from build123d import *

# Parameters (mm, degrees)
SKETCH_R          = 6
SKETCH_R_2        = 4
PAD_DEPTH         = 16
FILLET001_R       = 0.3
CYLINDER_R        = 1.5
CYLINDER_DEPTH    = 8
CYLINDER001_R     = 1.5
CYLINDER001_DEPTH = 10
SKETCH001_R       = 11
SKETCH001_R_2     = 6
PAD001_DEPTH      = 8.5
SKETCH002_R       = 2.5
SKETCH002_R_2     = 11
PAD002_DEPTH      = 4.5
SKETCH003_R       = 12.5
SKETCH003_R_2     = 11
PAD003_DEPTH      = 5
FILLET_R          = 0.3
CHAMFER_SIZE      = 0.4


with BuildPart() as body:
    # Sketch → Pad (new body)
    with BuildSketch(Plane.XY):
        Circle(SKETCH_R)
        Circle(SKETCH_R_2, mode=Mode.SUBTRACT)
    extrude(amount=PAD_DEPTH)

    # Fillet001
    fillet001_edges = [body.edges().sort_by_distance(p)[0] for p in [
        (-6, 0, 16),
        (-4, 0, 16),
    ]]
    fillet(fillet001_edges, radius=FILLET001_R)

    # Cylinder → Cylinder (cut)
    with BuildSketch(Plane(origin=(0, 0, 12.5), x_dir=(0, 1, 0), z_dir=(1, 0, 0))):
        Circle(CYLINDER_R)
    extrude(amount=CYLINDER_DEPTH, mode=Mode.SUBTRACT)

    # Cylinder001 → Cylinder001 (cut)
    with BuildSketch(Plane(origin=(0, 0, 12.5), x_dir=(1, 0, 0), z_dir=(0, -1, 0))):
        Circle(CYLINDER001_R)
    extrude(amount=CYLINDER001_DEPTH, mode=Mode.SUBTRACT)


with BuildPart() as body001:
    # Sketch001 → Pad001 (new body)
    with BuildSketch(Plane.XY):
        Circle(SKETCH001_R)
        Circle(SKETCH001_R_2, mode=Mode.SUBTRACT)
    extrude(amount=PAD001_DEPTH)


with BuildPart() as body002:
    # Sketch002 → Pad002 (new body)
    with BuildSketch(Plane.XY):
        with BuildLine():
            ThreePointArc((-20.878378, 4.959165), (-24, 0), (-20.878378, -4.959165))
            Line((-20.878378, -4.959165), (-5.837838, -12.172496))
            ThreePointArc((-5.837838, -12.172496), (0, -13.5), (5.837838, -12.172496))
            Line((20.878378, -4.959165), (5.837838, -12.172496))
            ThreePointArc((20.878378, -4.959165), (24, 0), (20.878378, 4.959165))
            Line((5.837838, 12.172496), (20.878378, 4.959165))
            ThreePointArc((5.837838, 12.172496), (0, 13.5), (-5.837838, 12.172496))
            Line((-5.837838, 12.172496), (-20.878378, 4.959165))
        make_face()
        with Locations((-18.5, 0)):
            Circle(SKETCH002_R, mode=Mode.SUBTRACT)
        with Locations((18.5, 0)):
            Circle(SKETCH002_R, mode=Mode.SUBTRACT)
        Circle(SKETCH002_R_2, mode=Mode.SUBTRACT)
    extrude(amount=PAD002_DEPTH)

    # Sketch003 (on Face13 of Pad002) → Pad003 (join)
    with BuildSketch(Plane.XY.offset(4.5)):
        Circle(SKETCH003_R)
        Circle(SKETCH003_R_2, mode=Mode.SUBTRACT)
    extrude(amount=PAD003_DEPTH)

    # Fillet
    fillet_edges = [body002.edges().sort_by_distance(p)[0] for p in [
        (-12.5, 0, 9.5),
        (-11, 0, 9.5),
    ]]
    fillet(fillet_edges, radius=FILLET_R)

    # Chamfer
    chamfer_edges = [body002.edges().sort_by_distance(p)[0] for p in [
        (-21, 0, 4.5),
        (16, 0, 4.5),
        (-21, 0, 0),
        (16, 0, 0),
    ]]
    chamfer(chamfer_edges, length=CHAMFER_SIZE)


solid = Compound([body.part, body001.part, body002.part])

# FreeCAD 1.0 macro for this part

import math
import FreeCAD as App
import Part
import Sketcher
from FreeCAD import Vector


def edges_at(feature, points):
    """Names of the edges that pass closest to the given points."""
    edges = feature.Shape.Edges
    near = lambda p: min(range(len(edges)), key=lambda i: edges[i].distToShape(Part.Vertex(*p))[0])
    return sorted({f"Edge{near(p) + 1}" for p in points})

doc = App.newDocument("Part")
body = doc.addObject("PartDesign::Body", "Body")

# Sketch on XY plane
sketch1 = body.newObject("Sketcher::SketchObject", "Sketch")
sketch1.AttachmentSupport = (doc.getObject("XY_Plane"), [""])
sketch1.MapMode = "FlatFace"
sketch1.addGeometry([
    Part.Circle(Vector(0, 0, 0), Vector(0, 0, 1), 6),
    Part.Circle(Vector(0, 0, 0), Vector(0, 0, 1), 4),
], False)
sketch1.addConstraint([
    Sketcher.Constraint("Coincident", 0, 3, -1, 1),
    Sketcher.Constraint("Coincident", 1, 3, -1, 1),
    Sketcher.Constraint("Diameter", 0, 12.0),
    Sketcher.Constraint("Diameter", 1, 8.0),
])
pad1 = body.newObject("PartDesign::Pad", "Pad")
pad1.Profile = sketch1
pad1.Length = 16
doc.recompute()

fillet = body.newObject("PartDesign::Fillet", "Fillet")
fillet.Base = (pad1, edges_at(pad1, [(-6, 0, 16), (-4, 0, 16)]))
fillet.Radius = 0.3

# Sketch on YZ plane
sketch2 = body.newObject("Sketcher::SketchObject", "Sketch001")
sketch2.AttachmentSupport = (doc.getObject("YZ_Plane"), [""])
sketch2.MapMode = "FlatFace"
sketch2.addGeometry(Part.Circle(Vector(0, 12.5, 0), Vector(0, 0, 1), 1.5), False)
sketch2.addConstraint([
    Sketcher.Constraint("PointOnObject", 0, 3, -2),
    Sketcher.Constraint("Diameter", 0, 3.0),
    Sketcher.Constraint("DistanceY", -1, 1, 0, 3, 12.5),
])
pocket1 = body.newObject("PartDesign::Pocket", "Pocket")
pocket1.Profile = sketch2
pocket1.Length = 8
pocket1.Reversed = True

# Sketch on XZ plane
sketch3 = body.newObject("Sketcher::SketchObject", "Sketch002")
sketch3.AttachmentSupport = (doc.getObject("XZ_Plane"), [""])
sketch3.MapMode = "FlatFace"
sketch3.addGeometry(Part.Circle(Vector(0, 12.5, 0), Vector(0, 0, 1), 1.5), False)
sketch3.addConstraint([
    Sketcher.Constraint("PointOnObject", 0, 3, -2),
    Sketcher.Constraint("Diameter", 0, 3.0),
    Sketcher.Constraint("DistanceY", -1, 1, 0, 3, 12.5),
])
pocket2 = body.newObject("PartDesign::Pocket", "Pocket001")
pocket2.Profile = sketch3
pocket2.Length = 10
pocket2.Reversed = True
body2 = doc.addObject("PartDesign::Body", "Body001")

# Sketch on XY plane
sketch4 = body2.newObject("Sketcher::SketchObject", "Sketch003")
sketch4.AttachmentSupport = (doc.getObject("XY_Plane001"), [""])
sketch4.MapMode = "FlatFace"
sketch4.addGeometry([
    Part.Circle(Vector(0, 0, 0), Vector(0, 0, 1), 11),
    Part.Circle(Vector(0, 0, 0), Vector(0, 0, 1), 6),
], False)
sketch4.addConstraint([
    Sketcher.Constraint("Coincident", 0, 3, -1, 1),
    Sketcher.Constraint("Coincident", 1, 3, -1, 1),
    Sketcher.Constraint("Diameter", 0, 22.0),
    Sketcher.Constraint("Diameter", 1, 12.0),
])
pad2 = body2.newObject("PartDesign::Pad", "Pad001")
pad2.Profile = sketch4
pad2.Length = 8.5
body3 = doc.addObject("PartDesign::Body", "Body002")

# Sketch on XY plane
sketch5 = body3.newObject("Sketcher::SketchObject", "Sketch004")
sketch5.AttachmentSupport = (doc.getObject("XY_Plane002"), [""])
sketch5.MapMode = "FlatFace"
sketch5.addGeometry([
    Part.ArcOfCircle(Part.Circle(Vector(-18.5, 0, 0), Vector(0, 0, 1), 5.5), math.radians(116), math.radians(244)),  # 0
    Part.LineSegment(Vector(-20.9, -5, 0), Vector(-5.8, -12.2, 0)),  # 1
    Part.ArcOfCircle(Part.Circle(Vector(0, 0, 0), Vector(0, 0, 1), 13.5), math.radians(-116), math.radians(-64)),  # 2
    Part.LineSegment(Vector(5.8, -12.2, 0), Vector(20.9, -5, 0)),  # 3
    Part.ArcOfCircle(Part.Circle(Vector(18.5, 0, 0), Vector(0, 0, 1), 5.5), math.radians(-64), math.radians(64)),  # 4
    Part.LineSegment(Vector(20.9, 5, 0), Vector(5.8, 12.2, 0)),  # 5
    Part.ArcOfCircle(Part.Circle(Vector(0, 0, 0), Vector(0, 0, 1), 13.5), math.radians(64), math.radians(116)),  # 6
    Part.LineSegment(Vector(-5.8, 12.2, 0), Vector(-20.9, 5, 0)),  # 7
    Part.Circle(Vector(-18.5, 0, 0), Vector(0, 0, 1), 2.5),  # 8
    Part.Circle(Vector(0, 0, 0), Vector(0, 0, 1), 11),  # 9
    Part.Circle(Vector(18.5, 0, 0), Vector(0, 0, 1), 2.5),  # 10
], False)
sketch5.addConstraint([
    Sketcher.Constraint("Tangent", 0, 2, 1, 1),
    Sketcher.Constraint("Tangent", 1, 2, 2, 1),
    Sketcher.Constraint("Tangent", 2, 2, 3, 1),
    Sketcher.Constraint("Tangent", 3, 2, 4, 1),
    Sketcher.Constraint("Tangent", 4, 2, 5, 1),
    Sketcher.Constraint("Tangent", 5, 2, 6, 1),
    Sketcher.Constraint("Tangent", 6, 2, 7, 1),
    Sketcher.Constraint("Tangent", 7, 2, 0, 1),
    Sketcher.Constraint("Coincident", 2, 3, -1, 1),
    Sketcher.Constraint("Coincident", 6, 3, -1, 1),
    Sketcher.Constraint("Coincident", 9, 3, -1, 1),
    Sketcher.Constraint("Coincident", 8, 3, 0, 3),
    Sketcher.Constraint("Coincident", 10, 3, 4, 3),
    Sketcher.Constraint("Equal", 0, 4),
    Sketcher.Constraint("Equal", 2, 6),
    Sketcher.Constraint("Equal", 8, 10),
    Sketcher.Constraint("Symmetric", 0, 3, 4, 3, -1, 1),
    Sketcher.Constraint("PointOnObject", 0, 3, -1),
    Sketcher.Constraint("Diameter", 8, 5.0),
    Sketcher.Constraint("Diameter", 9, 22.0),
    Sketcher.Constraint("Radius", 0, 5.5),
    Sketcher.Constraint("DistanceX", 0, 3, 4, 3, 37.0),
    Sketcher.Constraint("Radius", 2, 13.500004),
])
pad3 = body3.newObject("PartDesign::Pad", "Pad002")
pad3.Profile = sketch5
pad3.Length = 4.5

# Sketch on XY plane
sketch6 = body3.newObject("Sketcher::SketchObject", "Sketch005")
sketch6.AttachmentSupport = (doc.getObject("XY_Plane002"), [""])
sketch6.MapMode = "FlatFace"
sketch6.AttachmentOffset = App.Placement(Vector(0, 0, 4.5), App.Rotation())
sketch6.addGeometry([
    Part.Circle(Vector(0, 0, 0), Vector(0, 0, 1), 12),
    Part.Circle(Vector(0, 0, 0), Vector(0, 0, 1), 11),
], False)
sketch6.addConstraint([
    Sketcher.Constraint("Coincident", 0, 3, -1, 1),
    Sketcher.Constraint("Coincident", 1, 3, -1, 1),
    Sketcher.Constraint("Diameter", 0, 25.0),
    Sketcher.Constraint("Diameter", 1, 22.0),
])
pad4 = body3.newObject("PartDesign::Pad", "Pad003")
pad4.Profile = sketch6
pad4.Length = 5
doc.recompute()

fillet2 = body3.newObject("PartDesign::Fillet", "Fillet001")
fillet2.Base = (pad4, edges_at(pad4, [(-12.5, 0, 9.5), (-11, 0, 9.5)]))
fillet2.Radius = 0.3
doc.recompute()

chamfer = body3.newObject("PartDesign::Chamfer", "Chamfer")
chamfer.Base = (fillet2, edges_at(fillet2, [
    (-21, 0, 4.5),
    (16, 0, 4.5),
    (-21, 0, 0),
    (16, 0, 0),
]))
chamfer.Size = 0.4

doc.recompute()
